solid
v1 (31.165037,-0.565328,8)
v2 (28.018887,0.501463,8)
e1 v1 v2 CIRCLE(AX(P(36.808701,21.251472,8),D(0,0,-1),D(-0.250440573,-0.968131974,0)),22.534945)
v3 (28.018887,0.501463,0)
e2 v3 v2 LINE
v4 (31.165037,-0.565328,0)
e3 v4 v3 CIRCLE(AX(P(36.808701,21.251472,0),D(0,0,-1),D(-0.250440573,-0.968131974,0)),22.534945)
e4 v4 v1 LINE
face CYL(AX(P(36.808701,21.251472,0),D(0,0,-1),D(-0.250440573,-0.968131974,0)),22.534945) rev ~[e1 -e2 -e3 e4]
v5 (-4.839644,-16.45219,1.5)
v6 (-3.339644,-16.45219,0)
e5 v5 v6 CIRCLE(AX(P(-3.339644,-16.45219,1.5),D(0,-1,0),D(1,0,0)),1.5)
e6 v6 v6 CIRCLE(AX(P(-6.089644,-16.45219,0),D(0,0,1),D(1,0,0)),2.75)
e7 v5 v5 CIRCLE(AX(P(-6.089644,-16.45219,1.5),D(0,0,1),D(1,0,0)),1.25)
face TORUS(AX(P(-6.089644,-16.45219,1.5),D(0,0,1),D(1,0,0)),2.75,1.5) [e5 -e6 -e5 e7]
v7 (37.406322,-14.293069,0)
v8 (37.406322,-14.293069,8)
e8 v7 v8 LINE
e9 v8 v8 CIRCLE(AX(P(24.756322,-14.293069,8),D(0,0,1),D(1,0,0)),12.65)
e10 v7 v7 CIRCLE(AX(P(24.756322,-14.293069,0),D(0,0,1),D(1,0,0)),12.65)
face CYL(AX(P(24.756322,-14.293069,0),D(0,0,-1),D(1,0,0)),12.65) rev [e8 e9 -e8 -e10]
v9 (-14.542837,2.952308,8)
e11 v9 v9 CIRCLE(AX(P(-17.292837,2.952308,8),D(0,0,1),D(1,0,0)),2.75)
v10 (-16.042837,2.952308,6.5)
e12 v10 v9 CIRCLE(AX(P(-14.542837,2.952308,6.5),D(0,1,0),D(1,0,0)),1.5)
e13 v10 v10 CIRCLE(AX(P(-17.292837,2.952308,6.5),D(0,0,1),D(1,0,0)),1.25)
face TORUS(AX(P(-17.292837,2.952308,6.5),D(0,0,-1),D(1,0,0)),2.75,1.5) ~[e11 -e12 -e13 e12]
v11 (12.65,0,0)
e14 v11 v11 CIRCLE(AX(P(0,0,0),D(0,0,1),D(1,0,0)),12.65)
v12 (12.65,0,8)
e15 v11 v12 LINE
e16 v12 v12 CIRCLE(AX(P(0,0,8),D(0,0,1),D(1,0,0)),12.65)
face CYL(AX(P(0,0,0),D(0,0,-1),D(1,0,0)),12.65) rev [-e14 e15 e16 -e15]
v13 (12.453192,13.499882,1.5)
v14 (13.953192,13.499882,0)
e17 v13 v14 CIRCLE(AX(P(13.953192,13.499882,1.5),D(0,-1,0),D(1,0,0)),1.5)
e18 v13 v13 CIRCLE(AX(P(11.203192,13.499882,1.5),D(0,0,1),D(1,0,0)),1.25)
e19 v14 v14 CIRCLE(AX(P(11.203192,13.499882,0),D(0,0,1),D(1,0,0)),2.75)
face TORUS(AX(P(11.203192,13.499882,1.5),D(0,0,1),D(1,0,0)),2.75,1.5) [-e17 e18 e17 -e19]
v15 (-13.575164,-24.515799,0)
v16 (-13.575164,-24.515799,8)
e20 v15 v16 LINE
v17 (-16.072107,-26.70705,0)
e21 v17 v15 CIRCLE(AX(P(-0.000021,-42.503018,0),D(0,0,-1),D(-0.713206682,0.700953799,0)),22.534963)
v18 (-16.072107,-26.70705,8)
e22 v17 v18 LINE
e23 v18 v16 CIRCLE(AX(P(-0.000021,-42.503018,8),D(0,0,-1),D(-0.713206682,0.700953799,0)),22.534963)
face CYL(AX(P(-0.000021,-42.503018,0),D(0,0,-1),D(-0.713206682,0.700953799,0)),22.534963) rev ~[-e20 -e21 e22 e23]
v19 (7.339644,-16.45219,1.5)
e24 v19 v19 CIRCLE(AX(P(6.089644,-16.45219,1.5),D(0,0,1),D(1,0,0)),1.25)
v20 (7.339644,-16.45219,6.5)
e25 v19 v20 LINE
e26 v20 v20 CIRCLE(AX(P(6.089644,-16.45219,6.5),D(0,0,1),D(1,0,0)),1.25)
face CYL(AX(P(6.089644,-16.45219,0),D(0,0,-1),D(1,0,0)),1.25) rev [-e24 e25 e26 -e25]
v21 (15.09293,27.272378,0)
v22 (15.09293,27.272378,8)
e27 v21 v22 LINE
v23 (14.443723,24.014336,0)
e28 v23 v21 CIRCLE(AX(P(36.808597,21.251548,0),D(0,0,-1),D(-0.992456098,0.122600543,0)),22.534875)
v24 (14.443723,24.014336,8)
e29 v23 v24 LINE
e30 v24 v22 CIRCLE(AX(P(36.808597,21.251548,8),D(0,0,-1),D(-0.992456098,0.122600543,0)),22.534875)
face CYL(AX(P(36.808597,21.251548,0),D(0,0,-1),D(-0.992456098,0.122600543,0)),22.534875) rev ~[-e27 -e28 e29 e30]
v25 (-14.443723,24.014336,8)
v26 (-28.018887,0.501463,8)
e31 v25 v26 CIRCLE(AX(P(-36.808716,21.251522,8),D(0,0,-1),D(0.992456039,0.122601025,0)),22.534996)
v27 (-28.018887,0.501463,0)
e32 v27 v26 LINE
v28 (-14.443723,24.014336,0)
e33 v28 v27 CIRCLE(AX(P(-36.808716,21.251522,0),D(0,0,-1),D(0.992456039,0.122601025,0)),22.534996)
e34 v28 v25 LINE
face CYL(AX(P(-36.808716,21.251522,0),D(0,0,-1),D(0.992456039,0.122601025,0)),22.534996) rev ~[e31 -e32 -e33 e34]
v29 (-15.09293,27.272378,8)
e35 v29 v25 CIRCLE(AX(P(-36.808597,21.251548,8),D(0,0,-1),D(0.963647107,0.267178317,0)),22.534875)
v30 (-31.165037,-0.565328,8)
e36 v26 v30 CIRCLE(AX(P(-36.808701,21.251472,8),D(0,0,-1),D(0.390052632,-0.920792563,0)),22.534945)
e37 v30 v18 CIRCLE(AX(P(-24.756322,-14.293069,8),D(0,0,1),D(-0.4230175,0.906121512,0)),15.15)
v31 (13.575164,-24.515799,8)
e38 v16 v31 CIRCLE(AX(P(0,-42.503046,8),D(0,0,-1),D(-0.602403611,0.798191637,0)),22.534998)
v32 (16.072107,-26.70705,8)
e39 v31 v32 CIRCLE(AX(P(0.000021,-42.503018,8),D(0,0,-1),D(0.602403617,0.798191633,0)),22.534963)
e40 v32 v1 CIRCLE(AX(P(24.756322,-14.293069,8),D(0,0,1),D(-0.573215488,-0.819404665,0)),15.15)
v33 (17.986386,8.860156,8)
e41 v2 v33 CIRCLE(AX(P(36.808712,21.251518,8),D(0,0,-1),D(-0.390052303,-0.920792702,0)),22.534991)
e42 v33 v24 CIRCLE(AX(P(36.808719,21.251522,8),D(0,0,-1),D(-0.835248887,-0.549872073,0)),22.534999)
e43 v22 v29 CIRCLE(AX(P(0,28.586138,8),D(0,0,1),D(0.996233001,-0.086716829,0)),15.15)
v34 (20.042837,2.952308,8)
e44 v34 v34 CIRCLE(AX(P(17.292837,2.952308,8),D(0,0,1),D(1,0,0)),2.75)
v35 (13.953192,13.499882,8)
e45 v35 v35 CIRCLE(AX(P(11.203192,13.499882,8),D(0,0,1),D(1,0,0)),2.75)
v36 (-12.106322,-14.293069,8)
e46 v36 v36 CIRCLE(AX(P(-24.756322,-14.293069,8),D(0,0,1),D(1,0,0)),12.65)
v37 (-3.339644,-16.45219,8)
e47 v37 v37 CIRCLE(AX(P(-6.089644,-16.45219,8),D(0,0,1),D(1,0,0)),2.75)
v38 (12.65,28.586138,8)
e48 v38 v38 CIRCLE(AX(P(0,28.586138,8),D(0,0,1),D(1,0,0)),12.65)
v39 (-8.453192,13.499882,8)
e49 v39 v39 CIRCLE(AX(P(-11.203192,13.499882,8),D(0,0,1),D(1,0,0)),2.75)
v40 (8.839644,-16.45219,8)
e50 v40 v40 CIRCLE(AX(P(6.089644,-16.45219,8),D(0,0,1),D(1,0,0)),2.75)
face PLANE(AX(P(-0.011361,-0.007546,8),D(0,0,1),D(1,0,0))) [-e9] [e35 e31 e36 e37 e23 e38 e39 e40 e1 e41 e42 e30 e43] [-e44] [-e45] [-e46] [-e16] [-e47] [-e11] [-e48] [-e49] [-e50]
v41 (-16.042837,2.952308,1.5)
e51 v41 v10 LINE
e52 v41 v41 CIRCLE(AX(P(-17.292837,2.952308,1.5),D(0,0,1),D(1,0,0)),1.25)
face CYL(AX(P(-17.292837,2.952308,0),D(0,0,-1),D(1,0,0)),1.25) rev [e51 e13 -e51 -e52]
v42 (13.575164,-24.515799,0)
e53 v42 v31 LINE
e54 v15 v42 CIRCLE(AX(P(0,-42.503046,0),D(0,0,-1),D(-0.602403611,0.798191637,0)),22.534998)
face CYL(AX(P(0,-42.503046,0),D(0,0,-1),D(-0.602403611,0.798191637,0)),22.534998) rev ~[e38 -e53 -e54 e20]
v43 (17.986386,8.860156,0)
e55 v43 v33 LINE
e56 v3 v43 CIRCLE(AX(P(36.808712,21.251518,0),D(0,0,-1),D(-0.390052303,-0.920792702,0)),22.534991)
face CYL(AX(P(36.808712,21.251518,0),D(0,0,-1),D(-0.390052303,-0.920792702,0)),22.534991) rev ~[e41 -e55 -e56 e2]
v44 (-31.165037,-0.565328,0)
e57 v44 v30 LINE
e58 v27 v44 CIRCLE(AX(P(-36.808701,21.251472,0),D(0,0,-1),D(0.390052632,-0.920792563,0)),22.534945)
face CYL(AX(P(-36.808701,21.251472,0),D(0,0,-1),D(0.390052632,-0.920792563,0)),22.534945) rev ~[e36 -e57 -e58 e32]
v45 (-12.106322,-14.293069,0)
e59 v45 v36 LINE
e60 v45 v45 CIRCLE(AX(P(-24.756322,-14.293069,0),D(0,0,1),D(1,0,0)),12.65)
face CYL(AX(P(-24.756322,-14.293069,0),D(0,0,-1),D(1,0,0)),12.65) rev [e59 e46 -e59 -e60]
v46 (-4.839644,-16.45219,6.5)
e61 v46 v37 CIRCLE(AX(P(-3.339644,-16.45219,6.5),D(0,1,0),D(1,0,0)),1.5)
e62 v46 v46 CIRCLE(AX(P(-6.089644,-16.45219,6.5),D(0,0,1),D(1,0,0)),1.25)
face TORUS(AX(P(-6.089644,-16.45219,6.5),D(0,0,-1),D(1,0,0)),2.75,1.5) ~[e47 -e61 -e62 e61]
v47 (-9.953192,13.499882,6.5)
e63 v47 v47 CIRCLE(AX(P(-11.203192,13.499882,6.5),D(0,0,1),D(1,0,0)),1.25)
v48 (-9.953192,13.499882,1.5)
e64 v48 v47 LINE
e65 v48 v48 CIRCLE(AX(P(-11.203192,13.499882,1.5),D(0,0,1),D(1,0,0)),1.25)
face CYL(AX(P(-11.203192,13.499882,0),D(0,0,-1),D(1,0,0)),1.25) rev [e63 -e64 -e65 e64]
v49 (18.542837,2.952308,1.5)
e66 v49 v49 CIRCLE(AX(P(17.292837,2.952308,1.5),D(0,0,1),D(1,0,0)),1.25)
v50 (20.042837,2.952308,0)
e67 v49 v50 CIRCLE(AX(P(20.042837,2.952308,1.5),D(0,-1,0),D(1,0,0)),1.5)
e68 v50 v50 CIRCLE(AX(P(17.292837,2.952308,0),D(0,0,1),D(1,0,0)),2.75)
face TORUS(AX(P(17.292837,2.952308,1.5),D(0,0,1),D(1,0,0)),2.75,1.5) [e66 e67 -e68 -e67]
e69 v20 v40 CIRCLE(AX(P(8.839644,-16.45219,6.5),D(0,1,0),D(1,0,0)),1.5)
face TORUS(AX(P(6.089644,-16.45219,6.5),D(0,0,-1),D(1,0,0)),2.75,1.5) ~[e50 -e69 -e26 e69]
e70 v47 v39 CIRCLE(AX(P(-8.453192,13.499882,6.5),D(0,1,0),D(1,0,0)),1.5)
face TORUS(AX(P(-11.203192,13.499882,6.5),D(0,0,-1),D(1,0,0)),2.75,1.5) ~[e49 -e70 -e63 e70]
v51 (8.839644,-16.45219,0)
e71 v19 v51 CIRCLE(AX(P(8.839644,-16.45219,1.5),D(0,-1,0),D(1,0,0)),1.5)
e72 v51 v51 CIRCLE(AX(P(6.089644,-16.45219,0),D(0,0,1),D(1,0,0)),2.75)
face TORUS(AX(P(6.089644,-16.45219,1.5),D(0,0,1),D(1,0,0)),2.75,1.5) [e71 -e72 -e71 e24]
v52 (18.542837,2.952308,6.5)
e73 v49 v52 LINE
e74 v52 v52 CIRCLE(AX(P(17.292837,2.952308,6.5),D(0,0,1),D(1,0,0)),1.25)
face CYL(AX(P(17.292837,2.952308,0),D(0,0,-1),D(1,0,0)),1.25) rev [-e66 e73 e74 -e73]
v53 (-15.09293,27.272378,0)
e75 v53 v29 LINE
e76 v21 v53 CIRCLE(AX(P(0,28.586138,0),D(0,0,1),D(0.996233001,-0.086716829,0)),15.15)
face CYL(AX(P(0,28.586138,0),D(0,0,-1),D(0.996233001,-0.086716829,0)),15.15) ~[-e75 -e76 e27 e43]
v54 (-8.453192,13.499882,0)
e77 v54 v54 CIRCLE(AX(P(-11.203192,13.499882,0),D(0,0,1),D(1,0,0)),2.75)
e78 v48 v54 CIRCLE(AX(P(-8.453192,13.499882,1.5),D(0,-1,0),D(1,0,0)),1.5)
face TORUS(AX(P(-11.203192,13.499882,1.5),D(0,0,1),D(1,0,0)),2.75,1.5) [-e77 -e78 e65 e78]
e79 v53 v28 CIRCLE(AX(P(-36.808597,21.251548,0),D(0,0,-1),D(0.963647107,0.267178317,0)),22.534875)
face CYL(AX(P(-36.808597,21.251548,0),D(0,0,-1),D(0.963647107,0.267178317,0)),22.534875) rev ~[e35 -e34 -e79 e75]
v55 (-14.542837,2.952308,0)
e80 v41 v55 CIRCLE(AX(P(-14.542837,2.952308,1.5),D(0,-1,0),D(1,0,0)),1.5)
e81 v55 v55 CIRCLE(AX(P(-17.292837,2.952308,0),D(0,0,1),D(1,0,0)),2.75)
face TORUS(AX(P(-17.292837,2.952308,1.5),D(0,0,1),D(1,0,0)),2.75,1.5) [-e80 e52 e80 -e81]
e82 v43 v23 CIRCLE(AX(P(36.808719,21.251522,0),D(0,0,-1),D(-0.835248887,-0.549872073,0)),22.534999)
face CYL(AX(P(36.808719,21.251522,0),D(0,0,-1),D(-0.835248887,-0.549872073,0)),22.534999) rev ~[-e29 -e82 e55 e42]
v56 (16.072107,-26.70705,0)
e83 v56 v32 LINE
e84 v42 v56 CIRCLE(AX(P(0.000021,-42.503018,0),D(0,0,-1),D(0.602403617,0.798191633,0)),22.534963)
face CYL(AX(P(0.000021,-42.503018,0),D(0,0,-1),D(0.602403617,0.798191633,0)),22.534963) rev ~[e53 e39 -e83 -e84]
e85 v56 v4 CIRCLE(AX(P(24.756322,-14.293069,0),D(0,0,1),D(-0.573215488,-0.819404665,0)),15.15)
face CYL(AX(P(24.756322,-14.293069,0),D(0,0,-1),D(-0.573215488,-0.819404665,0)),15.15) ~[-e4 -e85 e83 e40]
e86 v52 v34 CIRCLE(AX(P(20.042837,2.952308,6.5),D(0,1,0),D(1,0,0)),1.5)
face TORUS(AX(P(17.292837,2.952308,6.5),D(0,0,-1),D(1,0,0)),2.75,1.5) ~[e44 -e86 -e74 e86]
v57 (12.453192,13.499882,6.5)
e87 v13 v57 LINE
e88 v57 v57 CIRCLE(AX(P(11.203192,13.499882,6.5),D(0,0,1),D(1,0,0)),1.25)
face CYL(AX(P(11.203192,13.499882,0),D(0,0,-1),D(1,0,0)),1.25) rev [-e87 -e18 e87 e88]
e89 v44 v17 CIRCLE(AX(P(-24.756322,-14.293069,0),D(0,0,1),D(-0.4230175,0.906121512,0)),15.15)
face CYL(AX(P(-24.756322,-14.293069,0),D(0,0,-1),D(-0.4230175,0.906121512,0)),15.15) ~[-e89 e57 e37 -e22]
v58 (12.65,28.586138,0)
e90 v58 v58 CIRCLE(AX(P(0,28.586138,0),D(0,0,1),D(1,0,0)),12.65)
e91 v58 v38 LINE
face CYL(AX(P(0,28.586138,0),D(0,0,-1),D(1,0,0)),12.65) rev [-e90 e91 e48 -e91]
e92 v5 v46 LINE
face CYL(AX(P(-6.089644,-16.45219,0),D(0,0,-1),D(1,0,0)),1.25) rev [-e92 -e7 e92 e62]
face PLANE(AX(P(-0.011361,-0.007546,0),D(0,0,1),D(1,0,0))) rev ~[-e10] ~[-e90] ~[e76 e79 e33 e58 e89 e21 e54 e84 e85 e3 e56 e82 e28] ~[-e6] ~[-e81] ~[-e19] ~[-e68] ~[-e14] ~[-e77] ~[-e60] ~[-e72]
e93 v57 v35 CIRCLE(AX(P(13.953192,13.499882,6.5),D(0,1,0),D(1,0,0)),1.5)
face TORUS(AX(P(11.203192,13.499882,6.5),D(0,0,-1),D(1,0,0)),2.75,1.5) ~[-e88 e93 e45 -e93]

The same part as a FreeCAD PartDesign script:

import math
import FreeCAD as App
import Part
import Sketcher


def edges_at(feature, points):
    """Names of the edges that pass closest to the given points."""
    edges = feature.Shape.Edges
    near = lambda p: min(range(len(edges)), key=lambda i: edges[i].distToShape(Part.Vertex(*p))[0])
    return sorted({f"Edge{near(p) + 1}" for p in points})

doc = App.newDocument("Part")
body = doc.addObject("PartDesign::Body", "Body")

# Sketch on XY plane
sketch1 = body.newObject("Sketcher::SketchObject", "Sketch")
sketch1.AttachmentSupport = (doc.getObject("XY_Plane"), [""])
sketch1.MapMode = "FlatFace"
sketch1.addGeometry([
    Part.ArcOfCircle(Part.Circle(App.Vector(36.808719, 21.251522, 0), App.Vector(0, 0, 1), 22.534999), math.radians(172.957762), math.radians(213.358237)),  # 0
    Part.ArcOfCircle(Part.Circle(App.Vector(36.808597, 21.251548, 0), App.Vector(0, 0, 1), 22.534875), math.radians(164.503571), math.radians(172.957789)),  # 1
    Part.ArcOfCircle(Part.Circle(App.Vector(0, 28.586138, 0), App.Vector(0, 0, 1), 15.15), math.radians(-4.974757), math.radians(184.974757)),  # 2
    Part.ArcOfCircle(Part.Circle(App.Vector(-36.808597, 21.251548, 0), App.Vector(0, 0, 1), 22.534875), math.radians(7.042211), math.radians(15.496429)),  # 3
    Part.ArcOfCircle(Part.Circle(App.Vector(-36.808716, 21.251522, 0), App.Vector(0, 0, 1), 22.534996), math.radians(-67.042241), math.radians(7.042239)),  # 4
    Part.ArcOfCircle(Part.Circle(App.Vector(-36.808701, 21.251472, 0), App.Vector(0, 0, 1), 22.534945), math.radians(-75.496415), math.radians(-67.042226)),  # 5
    Part.ArcOfCircle(Part.Circle(App.Vector(-24.756322, -14.293069, 0), App.Vector(0, 0, 1), 15.15), math.radians(115.025242), math.radians(304.974757)),  # 6
    Part.ArcOfCircle(Part.Circle(App.Vector(-0.000021, -42.503018, 0), App.Vector(0, 0, 1), 22.534963), math.radians(127.042239), math.radians(135.496422)),  # 7
    Part.ArcOfCircle(Part.Circle(App.Vector(0, -42.503046, 0), App.Vector(0, 0, 1), 22.534998), math.radians(52.957762), math.radians(127.042238)),  # 8
    Part.ArcOfCircle(Part.Circle(App.Vector(0.000021, -42.503018, 0), App.Vector(0, 0, 1), 22.534963), math.radians(44.503578), math.radians(52.957761)),  # 9
    Part.ArcOfCircle(Part.Circle(App.Vector(24.756322, -14.293069, 0), App.Vector(0, 0, 1), 15.15), math.radians(-124.974757), math.radians(64.974758)),  # 10
    Part.ArcOfCircle(Part.Circle(App.Vector(36.808701, 21.251472, 0), App.Vector(0, 0, 1), 22.534945), math.radians(-112.957774), math.radians(-104.503585)),  # 11
    Part.ArcOfCircle(Part.Circle(App.Vector(36.808712, 21.251518, 0), App.Vector(0, 0, 1), 22.534991), math.radians(-146.641763), math.radians(-112.957754)),  # 12
    Part.Circle(App.Vector(-24.756322, -14.293069, 0), App.Vector(0, 0, 1), 12.65),  # 13
    Part.Circle(App.Vector(-6.089644, -16.45219, 0), App.Vector(0, 0, 1), 1.25),  # 14
    Part.Circle(App.Vector(-17.292837, 2.952308, 0), App.Vector(0, 0, 1), 1.25),  # 15
    Part.Circle(App.Vector(6.089644, -16.45219, 0), App.Vector(0, 0, 1), 1.25),  # 16
    Part.Circle(App.Vector(24.756322, -14.293069, 0), App.Vector(0, 0, 1), 12.65),  # 17
    Part.Circle(App.Vector(0, 0, 0), App.Vector(0, 0, 1), 12.65),  # 18
    Part.Circle(App.Vector(17.292837, 2.952308, 0), App.Vector(0, 0, 1), 1.25),  # 19
    Part.Circle(App.Vector(-11.203192, 13.499882, 0), App.Vector(0, 0, 1), 1.25),  # 20
    Part.Circle(App.Vector(11.203192, 13.499882, 0), App.Vector(0, 0, 1), 1.25),  # 21
    Part.Circle(App.Vector(0, 28.586138, 0), App.Vector(0, 0, 1), 12.65),  # 22
], False)
sketch1.addConstraint([
    Sketcher.Constraint("Coincident", 0, 1, 1, 2),
    Sketcher.Constraint("Coincident", 1, 1, 2, 1),
    Sketcher.Constraint("Coincident", 2, 2, 3, 2),
    Sketcher.Constraint("Coincident", 3, 1, 4, 2),
    Sketcher.Constraint("Coincident", 4, 1, 5, 2),
    Sketcher.Constraint("Coincident", 5, 1, 6, 1),
    Sketcher.Constraint("Coincident", 6, 2, 7, 2),
    Sketcher.Constraint("Coincident", 7, 1, 8, 2),
    Sketcher.Constraint("Coincident", 8, 1, 9, 2),
    Sketcher.Constraint("Coincident", 9, 1, 10, 1),
    Sketcher.Constraint("Coincident", 10, 2, 11, 2),
    Sketcher.Constraint("Coincident", 11, 1, 12, 2),
    Sketcher.Constraint("Coincident", 12, 1, 0, 2),
    Sketcher.Constraint("Coincident", 18, 3, -1, 1),
    Sketcher.Constraint("Coincident", 12, 3, 0, 3),
    Sketcher.Constraint("Coincident", 13, 3, 6, 3),
    Sketcher.Constraint("Coincident", 17, 3, 10, 3),
    Sketcher.Constraint("Coincident", 22, 3, 2, 3),
    Sketcher.Constraint("PointOnObject", 2, 3, -2),
    Sketcher.Constraint("PointOnObject", 8, 3, -2),
    Sketcher.Constraint("Diameter", 13, 25.3),
    Sketcher.Constraint("Diameter", 14, 2.5),
    Sketcher.Constraint("Diameter", 15, 2.5),
    Sketcher.Constraint("Diameter", 16, 2.5),
    Sketcher.Constraint("Diameter", 17, 25.3),
    Sketcher.Constraint("Diameter", 18, 25.3),
    Sketcher.Constraint("Diameter", 19, 2.5),
    Sketcher.Constraint("Diameter", 20, 2.5),
    Sketcher.Constraint("Diameter", 21, 2.5),
    Sketcher.Constraint("Diameter", 22, 25.3),
    Sketcher.Constraint("Radius", 2, 15.15),
    Sketcher.Constraint("Radius", 6, 15.15),
    Sketcher.Constraint("Radius", 10, 15.15),
    Sketcher.Constraint("Radius", 0, 22.534999),
    Sketcher.Constraint("Radius", 1, 22.534875),
    Sketcher.Constraint("Radius", 3, 22.534875),
    Sketcher.Constraint("Radius", 4, 22.534996),
    Sketcher.Constraint("Radius", 5, 22.534945),
    Sketcher.Constraint("Radius", 7, 22.534963),
    Sketcher.Constraint("Radius", 8, 22.534998),
    Sketcher.Constraint("Radius", 9, 22.534963),
    Sketcher.Constraint("Radius", 11, 22.534945),
    Sketcher.Constraint("DistanceX", 5, 3, -1, 1, 36.808701),
    Sketcher.Constraint("DistanceX", -1, 1, 11, 3, 36.808701),
    Sketcher.Constraint("DistanceY", 7, 1, -1, 1, 24.515799),
    Sketcher.Constraint("DistanceY", 8, 1, -1, 1, 24.515799),
    Sketcher.Constraint("DistanceX", 5, 3, 1, 3, 73.617298),
    Sketcher.Constraint("DistanceX", 6, 3, 7, 3, 24.756301),
    Sketcher.Constraint("DistanceX", 9, 3, 10, 3, 24.756301),
    Sketcher.Constraint("DistanceY", 14, 3, 15, 3, 19.404498),
    Sketcher.Constraint("DistanceY", 16, 3, 19, 3, 19.404498),
    Sketcher.Constraint("DistanceY", 0, 1, 2, 3, 4.571802),
    Sketcher.Constraint("DistanceY", 3, 1, 2, 3, 4.571802),
    Sketcher.Constraint("DistanceX", 5, 1, 15, 3, 13.8722),
    Sketcher.Constraint("DistanceY", 5, 1, 5, 3, 21.8168),
    Sketcher.Constraint("DistanceX", 19, 3, 10, 2, 13.8722),
    Sketcher.Constraint("DistanceY", 10, 2, 11, 3, 21.8168),
    Sketcher.Constraint("DistanceX", 12, 1, 11, 1, 10.032501),
    Sketcher.Constraint("DistanceX", -1, 1, 0, 3, 36.808719),
    Sketcher.Constraint("DistanceY", -1, 1, 1, 3, 21.251548),
    Sketcher.Constraint("DistanceY", -1, 1, 3, 3, 21.251548),
    Sketcher.Constraint("DistanceX", 6, 3, -1, 1, 24.756322),
    Sketcher.Constraint("DistanceY", 6, 3, -1, 1, 14.293069),
    Sketcher.Constraint("DistanceY", 7, 3, -1, 1, 42.503018),
    Sketcher.Constraint("DistanceY", 9, 3, -1, 1, 42.503018),
    Sketcher.Constraint("DistanceY", 14, 3, -1, 1, 16.45219),
    Sketcher.Constraint("DistanceY", 16, 3, -1, 1, 16.45219),
    Sketcher.Constraint("DistanceX", -1, 1, 1, 1, 15.09293),
    Sketcher.Constraint("DistanceX", 2, 2, -1, 1, 15.09293),
    Sketcher.Constraint("DistanceX", 13, 3, 14, 3, 18.666678),
    Sketcher.Constraint("DistanceX", 16, 3, 17, 3, 18.666678),
    Sketcher.Constraint("DistanceX", 5, 3, 20, 3, 25.605509),
    Sketcher.Constraint("DistanceY", 20, 3, 5, 3, 7.75159),
    Sketcher.Constraint("DistanceX", 21, 3, 0, 1, 3.240531),
    Sketcher.Constraint("DistanceX", 4, 1, 15, 3, 10.72605),
    Sketcher.Constraint("DistanceX", 11, 1, 10, 2, 3.14615),
    Sketcher.Constraint("DistanceY", 11, 1, 21, 3, 12.998419),
])
pad1 = body.newObject("PartDesign::Pad", "Pad")
pad1.Profile = sketch1
pad1.Length = 8
doc.recompute()

fillet = body.newObject("PartDesign::Fillet", "Fillet")
fillet.Base = (pad1, edges_at(pad1, [
    (-12.453, 13.5, 0),
    (-12.453, 13.5, 8),
    (-18.543, 2.952, 8),
    (-7.34, -16.452, 8),
    (4.84, -16.452, 8),
    (16.043, 2.952, 8),
    (9.953, 13.5, 0),
    (9.953, 13.5, 8),
    (-7.34, -16.452, 0),
    (4.84, -16.452, 0),
    (-18.543, 2.952, 0),
    (16.043, 2.952, 0),
]))
fillet.Radius = 1.5

doc.recompute()
